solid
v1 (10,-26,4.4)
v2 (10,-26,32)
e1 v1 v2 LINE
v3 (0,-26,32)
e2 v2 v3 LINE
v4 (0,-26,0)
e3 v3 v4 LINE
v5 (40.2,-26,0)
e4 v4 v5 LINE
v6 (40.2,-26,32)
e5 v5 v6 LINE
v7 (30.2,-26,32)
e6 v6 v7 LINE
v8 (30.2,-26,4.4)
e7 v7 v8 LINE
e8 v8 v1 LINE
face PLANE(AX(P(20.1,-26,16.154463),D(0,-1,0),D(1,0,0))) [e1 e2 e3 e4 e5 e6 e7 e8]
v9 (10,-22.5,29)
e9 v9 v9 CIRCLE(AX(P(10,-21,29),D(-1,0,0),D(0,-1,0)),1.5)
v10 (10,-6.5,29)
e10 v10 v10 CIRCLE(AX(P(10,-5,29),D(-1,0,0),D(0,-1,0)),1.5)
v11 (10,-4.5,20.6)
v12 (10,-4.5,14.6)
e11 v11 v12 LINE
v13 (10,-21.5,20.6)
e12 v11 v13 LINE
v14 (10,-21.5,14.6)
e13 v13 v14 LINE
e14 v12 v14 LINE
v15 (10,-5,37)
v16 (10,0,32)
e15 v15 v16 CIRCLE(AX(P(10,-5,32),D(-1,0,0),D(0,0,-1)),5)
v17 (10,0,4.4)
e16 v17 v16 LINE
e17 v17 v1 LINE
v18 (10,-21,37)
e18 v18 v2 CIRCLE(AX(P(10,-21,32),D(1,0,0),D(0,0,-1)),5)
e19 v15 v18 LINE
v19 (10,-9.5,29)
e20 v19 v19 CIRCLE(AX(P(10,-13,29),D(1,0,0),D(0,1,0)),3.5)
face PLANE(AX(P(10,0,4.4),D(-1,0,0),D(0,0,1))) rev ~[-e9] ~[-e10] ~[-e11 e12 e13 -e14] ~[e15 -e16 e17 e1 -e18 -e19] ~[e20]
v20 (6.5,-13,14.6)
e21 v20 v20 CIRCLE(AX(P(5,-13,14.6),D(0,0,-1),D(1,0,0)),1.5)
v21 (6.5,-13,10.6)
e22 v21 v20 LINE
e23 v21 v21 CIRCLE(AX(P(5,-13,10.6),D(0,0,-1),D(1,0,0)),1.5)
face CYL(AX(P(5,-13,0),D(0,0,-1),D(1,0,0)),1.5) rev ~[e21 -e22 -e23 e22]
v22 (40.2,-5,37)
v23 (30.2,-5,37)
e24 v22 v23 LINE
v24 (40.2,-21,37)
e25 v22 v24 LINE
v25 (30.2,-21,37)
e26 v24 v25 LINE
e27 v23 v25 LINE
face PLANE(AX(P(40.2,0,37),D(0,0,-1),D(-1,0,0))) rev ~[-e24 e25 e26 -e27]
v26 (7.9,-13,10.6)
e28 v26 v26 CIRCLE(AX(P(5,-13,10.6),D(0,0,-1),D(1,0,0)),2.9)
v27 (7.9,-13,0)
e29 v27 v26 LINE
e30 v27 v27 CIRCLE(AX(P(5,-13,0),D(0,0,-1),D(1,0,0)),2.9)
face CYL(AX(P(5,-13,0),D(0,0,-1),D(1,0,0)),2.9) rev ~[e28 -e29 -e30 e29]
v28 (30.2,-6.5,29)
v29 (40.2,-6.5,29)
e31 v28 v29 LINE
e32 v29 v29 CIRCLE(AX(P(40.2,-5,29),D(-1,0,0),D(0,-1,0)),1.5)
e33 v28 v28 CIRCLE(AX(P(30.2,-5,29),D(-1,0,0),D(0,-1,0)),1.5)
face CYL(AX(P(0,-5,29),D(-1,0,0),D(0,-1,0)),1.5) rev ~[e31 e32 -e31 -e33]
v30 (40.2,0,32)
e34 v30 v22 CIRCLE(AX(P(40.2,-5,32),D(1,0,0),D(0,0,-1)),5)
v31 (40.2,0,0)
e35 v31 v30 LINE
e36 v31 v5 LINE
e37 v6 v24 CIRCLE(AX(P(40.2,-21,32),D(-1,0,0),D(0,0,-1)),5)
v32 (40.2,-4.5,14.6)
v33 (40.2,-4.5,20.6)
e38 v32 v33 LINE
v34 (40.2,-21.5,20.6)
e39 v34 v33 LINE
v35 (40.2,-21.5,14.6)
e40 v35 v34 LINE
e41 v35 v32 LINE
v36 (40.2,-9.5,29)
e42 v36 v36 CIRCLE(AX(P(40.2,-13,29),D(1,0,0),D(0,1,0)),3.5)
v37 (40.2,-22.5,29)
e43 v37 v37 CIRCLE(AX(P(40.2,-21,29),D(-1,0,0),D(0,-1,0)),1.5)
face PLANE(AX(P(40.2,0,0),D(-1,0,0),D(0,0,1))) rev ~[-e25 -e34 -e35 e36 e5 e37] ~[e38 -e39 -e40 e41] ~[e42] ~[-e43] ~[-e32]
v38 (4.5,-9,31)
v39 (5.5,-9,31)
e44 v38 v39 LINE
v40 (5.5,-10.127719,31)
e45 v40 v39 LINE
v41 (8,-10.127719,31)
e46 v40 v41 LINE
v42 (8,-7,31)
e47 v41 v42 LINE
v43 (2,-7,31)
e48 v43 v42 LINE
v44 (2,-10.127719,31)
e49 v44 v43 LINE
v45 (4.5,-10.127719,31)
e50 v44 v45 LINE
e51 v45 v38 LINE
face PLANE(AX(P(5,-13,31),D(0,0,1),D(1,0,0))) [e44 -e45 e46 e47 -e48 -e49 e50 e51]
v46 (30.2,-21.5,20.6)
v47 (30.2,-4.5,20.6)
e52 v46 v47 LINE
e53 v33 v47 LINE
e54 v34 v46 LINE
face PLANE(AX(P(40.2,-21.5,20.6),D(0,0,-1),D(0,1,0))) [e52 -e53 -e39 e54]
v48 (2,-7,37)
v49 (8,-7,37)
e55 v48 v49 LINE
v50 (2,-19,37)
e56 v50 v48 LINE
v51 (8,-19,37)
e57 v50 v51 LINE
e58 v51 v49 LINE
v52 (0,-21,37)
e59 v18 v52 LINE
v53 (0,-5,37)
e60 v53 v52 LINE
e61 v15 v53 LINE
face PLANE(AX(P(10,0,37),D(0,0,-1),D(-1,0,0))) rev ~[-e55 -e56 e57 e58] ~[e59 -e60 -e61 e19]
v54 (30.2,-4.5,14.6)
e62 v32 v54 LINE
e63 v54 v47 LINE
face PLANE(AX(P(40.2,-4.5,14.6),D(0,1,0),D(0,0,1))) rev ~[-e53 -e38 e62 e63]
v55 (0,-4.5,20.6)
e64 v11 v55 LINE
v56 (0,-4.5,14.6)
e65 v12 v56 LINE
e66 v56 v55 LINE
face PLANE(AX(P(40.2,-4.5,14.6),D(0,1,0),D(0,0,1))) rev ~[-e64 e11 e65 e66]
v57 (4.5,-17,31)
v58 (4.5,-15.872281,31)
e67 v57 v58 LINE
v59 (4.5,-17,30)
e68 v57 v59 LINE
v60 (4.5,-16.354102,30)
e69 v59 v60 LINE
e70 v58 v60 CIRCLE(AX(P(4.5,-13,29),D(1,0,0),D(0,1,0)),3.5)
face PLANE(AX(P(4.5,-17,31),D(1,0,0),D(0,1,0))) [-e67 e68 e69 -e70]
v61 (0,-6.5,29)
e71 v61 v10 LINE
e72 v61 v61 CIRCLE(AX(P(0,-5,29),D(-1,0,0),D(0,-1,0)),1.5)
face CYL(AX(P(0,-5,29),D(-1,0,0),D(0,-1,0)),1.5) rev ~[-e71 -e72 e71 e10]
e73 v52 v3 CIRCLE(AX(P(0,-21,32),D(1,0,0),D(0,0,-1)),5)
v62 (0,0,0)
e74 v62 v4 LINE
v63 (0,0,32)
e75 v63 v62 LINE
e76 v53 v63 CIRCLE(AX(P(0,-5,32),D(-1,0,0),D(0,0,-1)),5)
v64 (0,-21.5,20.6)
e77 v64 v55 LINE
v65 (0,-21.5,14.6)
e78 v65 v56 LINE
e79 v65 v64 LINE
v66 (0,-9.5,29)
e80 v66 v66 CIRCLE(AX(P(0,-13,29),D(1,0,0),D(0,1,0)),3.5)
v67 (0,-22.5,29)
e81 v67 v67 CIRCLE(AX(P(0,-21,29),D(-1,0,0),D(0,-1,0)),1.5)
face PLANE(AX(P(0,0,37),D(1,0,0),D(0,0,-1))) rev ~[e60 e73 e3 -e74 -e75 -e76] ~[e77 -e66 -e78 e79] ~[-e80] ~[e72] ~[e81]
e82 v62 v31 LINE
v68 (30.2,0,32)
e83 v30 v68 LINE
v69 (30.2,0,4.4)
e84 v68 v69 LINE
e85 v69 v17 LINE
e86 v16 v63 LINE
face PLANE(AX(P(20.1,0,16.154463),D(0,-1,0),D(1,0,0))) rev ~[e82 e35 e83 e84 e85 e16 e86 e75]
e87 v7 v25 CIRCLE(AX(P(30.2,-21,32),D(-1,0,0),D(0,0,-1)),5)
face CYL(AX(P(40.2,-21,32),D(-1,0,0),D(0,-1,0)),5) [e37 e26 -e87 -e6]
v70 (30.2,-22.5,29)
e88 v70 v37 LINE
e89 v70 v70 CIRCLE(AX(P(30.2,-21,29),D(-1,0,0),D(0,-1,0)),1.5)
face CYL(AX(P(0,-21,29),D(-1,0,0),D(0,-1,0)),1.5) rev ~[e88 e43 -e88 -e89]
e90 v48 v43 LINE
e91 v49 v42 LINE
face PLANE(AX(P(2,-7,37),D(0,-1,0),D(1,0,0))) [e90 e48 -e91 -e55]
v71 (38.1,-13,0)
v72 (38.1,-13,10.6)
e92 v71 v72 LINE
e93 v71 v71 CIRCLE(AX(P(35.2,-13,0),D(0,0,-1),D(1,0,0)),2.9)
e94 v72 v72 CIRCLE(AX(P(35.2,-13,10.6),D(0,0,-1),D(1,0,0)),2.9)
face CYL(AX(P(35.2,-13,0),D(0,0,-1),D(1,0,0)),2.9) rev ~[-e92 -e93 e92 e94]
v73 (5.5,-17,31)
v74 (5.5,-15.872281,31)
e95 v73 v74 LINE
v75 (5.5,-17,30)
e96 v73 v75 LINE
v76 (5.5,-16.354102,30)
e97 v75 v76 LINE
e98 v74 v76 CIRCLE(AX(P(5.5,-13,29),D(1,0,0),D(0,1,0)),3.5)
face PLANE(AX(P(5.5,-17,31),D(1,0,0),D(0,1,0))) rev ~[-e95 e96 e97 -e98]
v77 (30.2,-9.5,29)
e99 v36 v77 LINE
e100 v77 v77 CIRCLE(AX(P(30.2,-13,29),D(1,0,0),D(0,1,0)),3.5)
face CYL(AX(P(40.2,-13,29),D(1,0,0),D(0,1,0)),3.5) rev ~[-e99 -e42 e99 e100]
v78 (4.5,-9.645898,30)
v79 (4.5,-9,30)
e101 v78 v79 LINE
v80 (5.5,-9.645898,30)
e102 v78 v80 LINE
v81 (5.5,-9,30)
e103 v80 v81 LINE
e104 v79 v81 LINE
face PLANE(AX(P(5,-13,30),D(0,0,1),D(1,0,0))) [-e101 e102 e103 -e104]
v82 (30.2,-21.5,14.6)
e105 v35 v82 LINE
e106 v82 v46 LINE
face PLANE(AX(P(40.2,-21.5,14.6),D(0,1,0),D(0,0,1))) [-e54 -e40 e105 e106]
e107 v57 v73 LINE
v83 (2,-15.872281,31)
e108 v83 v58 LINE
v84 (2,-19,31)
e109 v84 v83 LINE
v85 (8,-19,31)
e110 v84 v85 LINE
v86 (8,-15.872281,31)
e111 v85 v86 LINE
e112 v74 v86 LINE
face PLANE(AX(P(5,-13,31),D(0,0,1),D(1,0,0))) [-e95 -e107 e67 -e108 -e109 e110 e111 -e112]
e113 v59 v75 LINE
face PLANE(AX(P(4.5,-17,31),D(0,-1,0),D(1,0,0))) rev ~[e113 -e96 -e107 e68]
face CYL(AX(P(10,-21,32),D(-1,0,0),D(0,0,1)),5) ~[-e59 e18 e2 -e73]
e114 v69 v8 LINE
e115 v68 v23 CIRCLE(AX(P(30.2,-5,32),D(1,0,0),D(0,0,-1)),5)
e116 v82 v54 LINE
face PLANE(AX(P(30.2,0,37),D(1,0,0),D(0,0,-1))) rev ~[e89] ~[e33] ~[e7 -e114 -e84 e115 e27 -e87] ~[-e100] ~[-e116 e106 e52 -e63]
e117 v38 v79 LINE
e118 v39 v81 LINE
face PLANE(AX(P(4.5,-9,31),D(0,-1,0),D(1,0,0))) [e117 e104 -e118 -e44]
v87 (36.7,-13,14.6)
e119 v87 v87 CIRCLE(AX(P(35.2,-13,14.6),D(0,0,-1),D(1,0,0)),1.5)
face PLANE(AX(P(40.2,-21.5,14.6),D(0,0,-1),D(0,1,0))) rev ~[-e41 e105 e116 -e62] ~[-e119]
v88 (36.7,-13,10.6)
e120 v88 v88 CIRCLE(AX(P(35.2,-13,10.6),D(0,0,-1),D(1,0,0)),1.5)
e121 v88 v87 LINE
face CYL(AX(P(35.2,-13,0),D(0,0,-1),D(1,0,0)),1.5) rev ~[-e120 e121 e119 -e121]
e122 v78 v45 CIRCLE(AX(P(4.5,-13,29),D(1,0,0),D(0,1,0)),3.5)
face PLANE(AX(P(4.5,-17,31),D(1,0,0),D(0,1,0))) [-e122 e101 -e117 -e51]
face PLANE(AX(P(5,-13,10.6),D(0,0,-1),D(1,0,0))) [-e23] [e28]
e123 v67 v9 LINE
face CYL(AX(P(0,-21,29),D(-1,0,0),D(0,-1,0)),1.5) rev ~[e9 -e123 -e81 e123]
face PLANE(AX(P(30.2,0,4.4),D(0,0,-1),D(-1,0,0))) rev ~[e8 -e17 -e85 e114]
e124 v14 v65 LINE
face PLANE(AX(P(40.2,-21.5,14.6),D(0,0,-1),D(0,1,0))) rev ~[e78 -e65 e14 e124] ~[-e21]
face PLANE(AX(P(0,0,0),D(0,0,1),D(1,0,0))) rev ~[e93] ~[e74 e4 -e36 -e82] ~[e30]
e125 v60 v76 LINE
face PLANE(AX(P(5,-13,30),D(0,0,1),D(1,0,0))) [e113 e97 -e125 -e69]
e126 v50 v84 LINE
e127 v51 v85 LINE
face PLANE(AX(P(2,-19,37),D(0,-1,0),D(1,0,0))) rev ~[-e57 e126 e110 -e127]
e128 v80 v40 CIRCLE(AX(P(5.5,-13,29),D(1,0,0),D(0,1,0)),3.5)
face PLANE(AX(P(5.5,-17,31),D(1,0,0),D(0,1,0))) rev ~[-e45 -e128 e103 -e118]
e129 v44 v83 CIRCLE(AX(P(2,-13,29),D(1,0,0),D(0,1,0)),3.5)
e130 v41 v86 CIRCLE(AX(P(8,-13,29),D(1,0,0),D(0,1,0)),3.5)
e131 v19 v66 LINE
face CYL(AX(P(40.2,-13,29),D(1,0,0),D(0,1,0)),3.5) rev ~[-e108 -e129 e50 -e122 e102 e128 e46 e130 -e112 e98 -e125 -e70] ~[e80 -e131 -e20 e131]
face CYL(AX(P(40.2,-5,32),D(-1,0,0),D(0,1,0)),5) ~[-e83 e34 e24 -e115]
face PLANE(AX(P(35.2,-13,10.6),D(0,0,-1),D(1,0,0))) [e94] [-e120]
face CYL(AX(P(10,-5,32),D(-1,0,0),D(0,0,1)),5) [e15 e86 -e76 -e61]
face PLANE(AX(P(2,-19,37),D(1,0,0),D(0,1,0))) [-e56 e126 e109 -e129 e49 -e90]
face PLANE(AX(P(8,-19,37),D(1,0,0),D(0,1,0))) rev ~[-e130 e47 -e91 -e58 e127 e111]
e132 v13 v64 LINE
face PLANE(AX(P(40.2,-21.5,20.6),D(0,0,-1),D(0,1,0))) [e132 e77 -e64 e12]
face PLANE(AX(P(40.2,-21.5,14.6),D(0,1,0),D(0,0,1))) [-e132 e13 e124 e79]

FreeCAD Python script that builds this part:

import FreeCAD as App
import Part
import Sketcher
from FreeCAD import Vector


def edges_at(feature, points):
    """Names of the edges that pass closest to the given points."""
    edges = feature.Shape.Edges
    near = lambda p: min(range(len(edges)), key=lambda i: edges[i].distToShape(Part.Vertex(*p))[0])
    return sorted({f"Edge{near(p) + 1}" for p in points})

doc = App.newDocument("Part")
body = doc.addObject("PartDesign::Body", "Body")

# Sketch on XZ plane
sketch1 = body.newObject("Sketcher::SketchObject", "Sketch")
sketch1.AttachmentSupport = (doc.getObject("XZ_Plane"), [""])
sketch1.MapMode = "FlatFace"
sketch1.addGeometry(Part.LineSegment(Vector(0, 37, 0), Vector(0, 0, 0)), False)
sketch1.addGeometry(Part.LineSegment(Vector(0, 0, 0), Vector(40, 0, 0)), False)
sketch1.addGeometry(Part.LineSegment(Vector(40, 0, 0), Vector(40, 37, 0)), False)
sketch1.addGeometry(Part.LineSegment(Vector(40, 37, 0), Vector(30, 37, 0)), False)
sketch1.addGeometry(Part.LineSegment(Vector(30, 37, 0), Vector(30, 4, 0)), False)
sketch1.addGeometry(Part.LineSegment(Vector(30, 4, 0), Vector(10, 4, 0)), False)
sketch1.addGeometry(Part.LineSegment(Vector(10, 4, 0), Vector(10, 37, 0)), False)
sketch1.addGeometry(Part.LineSegment(Vector(10, 37, 0), Vector(0, 37, 0)), False)
sketch1.addConstraint(Sketcher.Constraint("Coincident", 0, 2, 1, 1))
sketch1.addConstraint(Sketcher.Constraint("Coincident", 1, 2, 2, 1))
sketch1.addConstraint(Sketcher.Constraint("Coincident", 2, 2, 3, 1))
sketch1.addConstraint(Sketcher.Constraint("Coincident", 3, 2, 4, 1))
sketch1.addConstraint(Sketcher.Constraint("Coincident", 4, 2, 5, 1))
sketch1.addConstraint(Sketcher.Constraint("Coincident", 5, 2, 6, 1))
sketch1.addConstraint(Sketcher.Constraint("Coincident", 6, 2, 7, 1))
sketch1.addConstraint(Sketcher.Constraint("Coincident", 7, 2, 0, 1))
sketch1.addConstraint(Sketcher.Constraint("Vertical", 0))
sketch1.addConstraint(Sketcher.Constraint("Horizontal", 1))
sketch1.addConstraint(Sketcher.Constraint("Vertical", 2))
sketch1.addConstraint(Sketcher.Constraint("Horizontal", 3))
sketch1.addConstraint(Sketcher.Constraint("Vertical", 4))
sketch1.addConstraint(Sketcher.Constraint("Horizontal", 5))
sketch1.addConstraint(Sketcher.Constraint("Vertical", 6))
sketch1.addConstraint(Sketcher.Constraint("Horizontal", 7))
sketch1.addConstraint(Sketcher.Constraint("Coincident", 0, 2, -1, 1))
sketch1.addConstraint(Sketcher.Constraint("Horizontal", 3, 2, 6, 2))
sketch1.addConstraint(Sketcher.Constraint("Equal", 3, 7))
sketch1.addConstraint(Sketcher.Constraint("DistanceX", 3, 2, 3, 1, 10.0))
sketch1.addConstraint(Sketcher.Constraint("DistanceY", 0, 2, 0, 1, 37.0))
sketch1.addConstraint(Sketcher.Constraint("DistanceX", 1, 1, 1, 2, 40.2))
sketch1.addConstraint(Sketcher.Constraint("DistanceY", 4, 2, 4, 1, 32.6))
pad1 = body.newObject("PartDesign::Pad", "Pad")
pad1.Profile = sketch1
pad1.Length = 26

# Sketch on YZ plane
sketch2 = body.newObject("Sketcher::SketchObject", "Sketch001")
sketch2.AttachmentSupport = (doc.getObject("YZ_Plane"), [""])
sketch2.MapMode = "FlatFace"
sketch2.AttachmentOffset = App.Placement(Vector(0, 0, 40.2), App.Rotation())
sketch2.addGeometry(Part.LineSegment(Vector(-22, 21, 0), Vector(-22, 15, 0)), False)
sketch2.addGeometry(Part.LineSegment(Vector(-22, 15, 0), Vector(-4, 15, 0)), False)
sketch2.addGeometry(Part.LineSegment(Vector(-4, 15, 0), Vector(-4, 21, 0)), False)
sketch2.addGeometry(Part.LineSegment(Vector(-4, 21, 0), Vector(-22, 21, 0)), False)
sketch2.addConstraint(Sketcher.Constraint("Coincident", 0, 2, 1, 1))
sketch2.addConstraint(Sketcher.Constraint("Coincident", 1, 2, 2, 1))
sketch2.addConstraint(Sketcher.Constraint("Coincident", 2, 2, 3, 1))
sketch2.addConstraint(Sketcher.Constraint("Coincident", 3, 2, 0, 1))
sketch2.addConstraint(Sketcher.Constraint("Vertical", 0))
sketch2.addConstraint(Sketcher.Constraint("Horizontal", 1))
sketch2.addConstraint(Sketcher.Constraint("Vertical", 2))
sketch2.addConstraint(Sketcher.Constraint("Horizontal", 3))
sketch2.addConstraint(Sketcher.Constraint("DistanceX", 1, 1, 1, 2, 17.0))
sketch2.addConstraint(Sketcher.Constraint("DistanceY", 0, 2, 0, 1, 6.0))
sketch2.addConstraint(Sketcher.Constraint("DistanceX", 0, 2, -1, 1, 21.5))
sketch2.addConstraint(Sketcher.Constraint("DistanceY", -1, 1, 0, 2, 14.6))
pocket1 = body.newObject("PartDesign::Pocket", "Pocket")
pocket1.Profile = sketch2
pocket1.Type = "ThroughAll"

# Sketch on YZ plane
sketch3 = body.newObject("Sketcher::SketchObject", "Sketch002")
sketch3.AttachmentSupport = (doc.getObject("YZ_Plane"), [""])
sketch3.MapMode = "FlatFace"
sketch3.AttachmentOffset = App.Placement(Vector(0, 0, 40.2), App.Rotation())
sketch3.addGeometry(Part.Circle(Vector(-13, 29, 0), Vector(0, 0, 1), 3.5), False)
sketch3.addConstraint(Sketcher.Constraint("Diameter", 0, 7.0))
sketch3.addConstraint(Sketcher.Constraint("DistanceX", 0, 3, -1, 1, 13.0))
sketch3.addConstraint(Sketcher.Constraint("DistanceY", -1, 1, 0, 3, 29.0))
pocket2 = body.newObject("PartDesign::Pocket", "Pocket001")
pocket2.Profile = sketch3
pocket2.Type = "ThroughAll"

# Sketch on XY plane
sketch4 = body.newObject("Sketcher::SketchObject", "Sketch003")
sketch4.AttachmentSupport = (doc.getObject("XY_Plane"), [""])
sketch4.MapMode = "FlatFace"
sketch4.addGeometry(Part.Circle(Vector(5, -13, 0), Vector(0, 0, 1), 1.5), False)
sketch4.addGeometry(Part.Circle(Vector(35.2, -13, 0), Vector(0, 0, 1), 1.5), False)
sketch4.addConstraint(Sketcher.Constraint("Equal", 0, 1))
sketch4.addConstraint(Sketcher.Constraint("Horizontal", 0, 3, 1, 3))
sketch4.addConstraint(Sketcher.Constraint("Diameter", 0, 3.0))
sketch4.addConstraint(Sketcher.Constraint("DistanceX", -1, 1, 0, 3, 5.0))
sketch4.addConstraint(Sketcher.Constraint("DistanceY", 0, 3, -1, 1, 13.0))
sketch4.addConstraint(Sketcher.Constraint("DistanceX", -1, 1, 1, 3, 35.2))
pocket3 = body.newObject("PartDesign::Pocket", "Pocket002")
pocket3.Profile = sketch4
pocket3.Length = 20.6
pocket3.Reversed = True

# Sketch on XY plane
sketch5 = body.newObject("Sketcher::SketchObject", "Sketch004")
sketch5.AttachmentSupport = (doc.getObject("XY_Plane"), [""])
sketch5.MapMode = "FlatFace"
sketch5.addGeometry(Part.Circle(Vector(5, -13, 0), Vector(0, 0, 1), 2.9), False)
sketch5.addGeometry(Part.Circle(Vector(35.2, -13, 0), Vector(0, 0, 1), 2.9), False)
sketch5.addConstraint(Sketcher.Constraint("Equal", 0, 1))
sketch5.addConstraint(Sketcher.Constraint("Horizontal", 0, 3, 1, 3))
sketch5.addConstraint(Sketcher.Constraint("Diameter", 0, 5.8))
sketch5.addConstraint(Sketcher.Constraint("DistanceX", -1, 1, 0, 3, 5.0))
sketch5.addConstraint(Sketcher.Constraint("DistanceY", 0, 3, -1, 1, 13.0))
sketch5.addConstraint(Sketcher.Constraint("DistanceX", -1, 1, 1, 3, 35.2))
pocket4 = body.newObject("PartDesign::Pocket", "Pocket003")
pocket4.Profile = sketch5
pocket4.Length = 10.6
pocket4.Reversed = True

# Sketch on YZ plane
sketch6 = body.newObject("Sketcher::SketchObject", "Sketch005")
sketch6.AttachmentSupport = (doc.getObject("YZ_Plane"), [""])
sketch6.MapMode = "FlatFace"
sketch6.addGeometry(Part.Circle(Vector(-5, 29, 0), Vector(0, 0, 1), 1.5), False)
sketch6.addGeometry(Part.Circle(Vector(-21, 29, 0), Vector(0, 0, 1), 1.5), False)
sketch6.addConstraint(Sketcher.Constraint("Equal", 0, 1))
sketch6.addConstraint(Sketcher.Constraint("Horizontal", 0, 3, 1, 3))
sketch6.addConstraint(Sketcher.Constraint("Diameter", 0, 3.0))
sketch6.addConstraint(Sketcher.Constraint("DistanceX", 0, 3, -1, 1, 5.0))
sketch6.addConstraint(Sketcher.Constraint("DistanceY", -1, 1, 0, 3, 29.0))
sketch6.addConstraint(Sketcher.Constraint("DistanceX", 1, 3, -1, 1, 21.0))
pocket5 = body.newObject("PartDesign::Pocket", "Pocket004")
pocket5.Profile = sketch6
pocket5.Type = "ThroughAll"
pocket5.Reversed = True

# Sketch on XY plane
sketch7 = body.newObject("Sketcher::SketchObject", "Sketch006")
sketch7.AttachmentSupport = (doc.getObject("XY_Plane"), [""])
sketch7.MapMode = "FlatFace"
sketch7.AttachmentOffset = App.Placement(Vector(0, 0, 37), App.Rotation())
sketch7.addGeometry(Part.LineSegment(Vector(2, -7, 0), Vector(2, -19, 0)), False)
sketch7.addGeometry(Part.LineSegment(Vector(2, -19, 0), Vector(8, -19, 0)), False)
sketch7.addGeometry(Part.LineSegment(Vector(8, -19, 0), Vector(8, -7, 0)), False)
sketch7.addGeometry(Part.LineSegment(Vector(8, -7, 0), Vector(2, -7, 0)), False)
sketch7.addConstraint(Sketcher.Constraint("Coincident", 0, 2, 1, 1))
sketch7.addConstraint(Sketcher.Constraint("Coincident", 1, 2, 2, 1))
sketch7.addConstraint(Sketcher.Constraint("Coincident", 2, 2, 3, 1))
sketch7.addConstraint(Sketcher.Constraint("Coincident", 3, 2, 0, 1))
sketch7.addConstraint(Sketcher.Constraint("Vertical", 0))
sketch7.addConstraint(Sketcher.Constraint("Horizontal", 1))
sketch7.addConstraint(Sketcher.Constraint("Vertical", 2))
sketch7.addConstraint(Sketcher.Constraint("Horizontal", 3))
sketch7.addConstraint(Sketcher.Constraint("DistanceX", 1, 1, 1, 2, 6.0))
sketch7.addConstraint(Sketcher.Constraint("DistanceY", 0, 2, 0, 1, 12.0))
sketch7.addConstraint(Sketcher.Constraint("DistanceX", -1, 1, 0, 2, 2.0))
sketch7.addConstraint(Sketcher.Constraint("DistanceY", 0, 2, -1, 1, 19.0))
pocket6 = body.newObject("PartDesign::Pocket", "Pocket005")
pocket6.Profile = sketch7
pocket6.Length = 6

# Sketch on XY plane
sketch8 = body.newObject("Sketcher::SketchObject", "Sketch007")
sketch8.AttachmentSupport = (doc.getObject("XY_Plane"), [""])
sketch8.MapMode = "FlatFace"
sketch8.AttachmentOffset = App.Placement(Vector(0, 0, 31), App.Rotation())
sketch8.addGeometry(Part.LineSegment(Vector(4.5, -9, 0), Vector(4.5, -17, 0)), False)
sketch8.addGeometry(Part.LineSegment(Vector(4.5, -17, 0), Vector(5.5, -17, 0)), False)
sketch8.addGeometry(Part.LineSegment(Vector(5.5, -17, 0), Vector(5.5, -9, 0)), False)
sketch8.addGeometry(Part.LineSegment(Vector(5.5, -9, 0), Vector(4.5, -9, 0)), False)
sketch8.addConstraint(Sketcher.Constraint("Coincident", 0, 2, 1, 1))
sketch8.addConstraint(Sketcher.Constraint("Coincident", 1, 2, 2, 1))
sketch8.addConstraint(Sketcher.Constraint("Coincident", 2, 2, 3, 1))
sketch8.addConstraint(Sketcher.Constraint("Coincident", 3, 2, 0, 1))
sketch8.addConstraint(Sketcher.Constraint("Vertical", 0))
sketch8.addConstraint(Sketcher.Constraint("Horizontal", 1))
sketch8.addConstraint(Sketcher.Constraint("Vertical", 2))
sketch8.addConstraint(Sketcher.Constraint("Horizontal", 3))
sketch8.addConstraint(Sketcher.Constraint("DistanceX", 1, 1, 1, 2, 1.0))
sketch8.addConstraint(Sketcher.Constraint("DistanceY", 0, 2, 0, 1, 8.0))
sketch8.addConstraint(Sketcher.Constraint("DistanceY", 0, 2, -1, 1, 17.0))
sketch8.addConstraint(Sketcher.Constraint("DistanceX", -1, 1, 0, 2, 4.5))
pocket7 = body.newObject("PartDesign::Pocket", "Pocket006")
pocket7.Profile = sketch8
pocket7.Length = 1
doc.recompute()

fillet = body.newObject("PartDesign::Fillet", "Fillet")
fillet.Base = (pocket7, edges_at(pocket7, [
    (5, -26, 37),
    (5, 0, 37),
    (35.2, 0, 37),
    (35.2, -26, 37),
]))
fillet.Radius = 5

doc.recompute()
